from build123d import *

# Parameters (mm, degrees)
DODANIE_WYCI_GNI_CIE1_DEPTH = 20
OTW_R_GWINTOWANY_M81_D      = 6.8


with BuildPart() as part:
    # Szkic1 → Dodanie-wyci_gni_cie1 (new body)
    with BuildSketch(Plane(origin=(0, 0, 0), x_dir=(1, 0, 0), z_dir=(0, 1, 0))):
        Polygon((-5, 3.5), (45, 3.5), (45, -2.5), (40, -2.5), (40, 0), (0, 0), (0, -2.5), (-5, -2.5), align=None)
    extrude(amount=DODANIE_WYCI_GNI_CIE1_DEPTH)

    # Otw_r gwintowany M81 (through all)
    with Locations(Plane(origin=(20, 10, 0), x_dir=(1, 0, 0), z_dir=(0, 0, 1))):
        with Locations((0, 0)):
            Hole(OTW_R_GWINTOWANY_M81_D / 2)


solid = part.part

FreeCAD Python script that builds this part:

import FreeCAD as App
import Part
import Sketcher

V = App.Vector
Q = App.Units.Quantity

doc = App.newDocument("Part")
body = doc.addObject("PartDesign::Body", "Body")

# Sketch on XZ plane
sketch1 = doc.addObject("Sketcher::SketchObject", "Sketch")
body.addObject(sketch1)
sketch1.AttachmentSupport = (doc.XZ_Plane, [""])
sketch1.MapMode = "FlatFace"
sketch1.addGeometry(Part.LineSegment(V(45, -3.5, 0), V(-5, -3.5, 0)), False)
sketch1.addGeometry(Part.LineSegment(V(-5, -3.5, 0), V(-5, 2.5, 0)), False)
sketch1.addGeometry(Part.LineSegment(V(-5, 2.5, 0), V(0, 2.5, 0)), False)
sketch1.addGeometry(Part.LineSegment(V(0, 2.5, 0), V(0, 0, 0)), False)
sketch1.addGeometry(Part.LineSegment(V(0, 0, 0), V(40, 0, 0)), False)
sketch1.addGeometry(Part.LineSegment(V(40, 0, 0), V(40, 2.5, 0)), False)
sketch1.addGeometry(Part.LineSegment(V(40, 2.5, 0), V(45, 2.5, 0)), False)
sketch1.addGeometry(Part.LineSegment(V(45, 2.5, 0), V(45, -3.5, 0)), False)
sketch1.addConstraint(Sketcher.Constraint("Coincident", 0, 2, 1, 1))
sketch1.addConstraint(Sketcher.Constraint("Coincident", 1, 2, 2, 1))
sketch1.addConstraint(Sketcher.Constraint("Coincident", 2, 2, 3, 1))
sketch1.addConstraint(Sketcher.Constraint("Coincident", 3, 2, 4, 1))
sketch1.addConstraint(Sketcher.Constraint("Coincident", 4, 2, 5, 1))
sketch1.addConstraint(Sketcher.Constraint("Coincident", 5, 2, 6, 1))
sketch1.addConstraint(Sketcher.Constraint("Coincident", 6, 2, 7, 1))
sketch1.addConstraint(Sketcher.Constraint("Coincident", 7, 2, 0, 1))
sketch1.addConstraint(Sketcher.Constraint("Horizontal", 0))
sketch1.addConstraint(Sketcher.Constraint("Vertical", 1))
sketch1.addConstraint(Sketcher.Constraint("Horizontal", 2))
sketch1.addConstraint(Sketcher.Constraint("Vertical", 3))
sketch1.addConstraint(Sketcher.Constraint("Horizontal", 4))
sketch1.addConstraint(Sketcher.Constraint("Vertical", 5))
sketch1.addConstraint(Sketcher.Constraint("Horizontal", 6))
sketch1.addConstraint(Sketcher.Constraint("Vertical", 7))
sketch1.addConstraint(Sketcher.Constraint("Coincident", 3, 2, -1, 1))
sketch1.addConstraint(Sketcher.Constraint("Horizontal", 2, 2, 5, 2))
sketch1.addConstraint(Sketcher.Constraint("Equal", 2, 6))
sketch1.addConstraint(Sketcher.Constraint("DistanceX", 0, 2, 0, 1, Q("50 mm")))
sketch1.addConstraint(Sketcher.Constraint("DistanceX", 2, 1, 2, 2, Q("5 mm")))
sketch1.addConstraint(Sketcher.Constraint("DistanceY", 1, 1, 1, 2, Q("6 mm")))
sketch1.addConstraint(Sketcher.Constraint("DistanceY", 3, 2, 3, 1, Q("2.5 mm")))
pad1 = doc.addObject("PartDesign::Pad", "Pad")
body.addObject(pad1)
pad1.Profile = sketch1
pad1.Length = 20
pad1.Reversed = True

# Sketch on XY plane
sketch2 = doc.addObject("Sketcher::SketchObject", "Sketch001")
body.addObject(sketch2)
sketch2.AttachmentSupport = (doc.XY_Plane, [""])
sketch2.MapMode = "FlatFace"
sketch2.addGeometry(Part.Circle(V(20, 10, 0), V(0, 0, 1), 3.4), False)
sketch2.addConstraint(Sketcher.Constraint("Diameter", 0, Q("6.8 mm")))
sketch2.addConstraint(Sketcher.Constraint("DistanceX", -1, 1, 0, 3, Q("20 mm")))
sketch2.addConstraint(Sketcher.Constraint("DistanceY", -1, 1, 0, 3, Q("10 mm")))
doc.recompute()
hole = doc.addObject("PartDesign::Hole", "Hole")
body.addObject(hole)
hole.Profile = sketch2
hole.ThreadType = "None"
hole.Diameter = 6.8
hole.DepthType = "ThroughAll"

doc.recompute()
